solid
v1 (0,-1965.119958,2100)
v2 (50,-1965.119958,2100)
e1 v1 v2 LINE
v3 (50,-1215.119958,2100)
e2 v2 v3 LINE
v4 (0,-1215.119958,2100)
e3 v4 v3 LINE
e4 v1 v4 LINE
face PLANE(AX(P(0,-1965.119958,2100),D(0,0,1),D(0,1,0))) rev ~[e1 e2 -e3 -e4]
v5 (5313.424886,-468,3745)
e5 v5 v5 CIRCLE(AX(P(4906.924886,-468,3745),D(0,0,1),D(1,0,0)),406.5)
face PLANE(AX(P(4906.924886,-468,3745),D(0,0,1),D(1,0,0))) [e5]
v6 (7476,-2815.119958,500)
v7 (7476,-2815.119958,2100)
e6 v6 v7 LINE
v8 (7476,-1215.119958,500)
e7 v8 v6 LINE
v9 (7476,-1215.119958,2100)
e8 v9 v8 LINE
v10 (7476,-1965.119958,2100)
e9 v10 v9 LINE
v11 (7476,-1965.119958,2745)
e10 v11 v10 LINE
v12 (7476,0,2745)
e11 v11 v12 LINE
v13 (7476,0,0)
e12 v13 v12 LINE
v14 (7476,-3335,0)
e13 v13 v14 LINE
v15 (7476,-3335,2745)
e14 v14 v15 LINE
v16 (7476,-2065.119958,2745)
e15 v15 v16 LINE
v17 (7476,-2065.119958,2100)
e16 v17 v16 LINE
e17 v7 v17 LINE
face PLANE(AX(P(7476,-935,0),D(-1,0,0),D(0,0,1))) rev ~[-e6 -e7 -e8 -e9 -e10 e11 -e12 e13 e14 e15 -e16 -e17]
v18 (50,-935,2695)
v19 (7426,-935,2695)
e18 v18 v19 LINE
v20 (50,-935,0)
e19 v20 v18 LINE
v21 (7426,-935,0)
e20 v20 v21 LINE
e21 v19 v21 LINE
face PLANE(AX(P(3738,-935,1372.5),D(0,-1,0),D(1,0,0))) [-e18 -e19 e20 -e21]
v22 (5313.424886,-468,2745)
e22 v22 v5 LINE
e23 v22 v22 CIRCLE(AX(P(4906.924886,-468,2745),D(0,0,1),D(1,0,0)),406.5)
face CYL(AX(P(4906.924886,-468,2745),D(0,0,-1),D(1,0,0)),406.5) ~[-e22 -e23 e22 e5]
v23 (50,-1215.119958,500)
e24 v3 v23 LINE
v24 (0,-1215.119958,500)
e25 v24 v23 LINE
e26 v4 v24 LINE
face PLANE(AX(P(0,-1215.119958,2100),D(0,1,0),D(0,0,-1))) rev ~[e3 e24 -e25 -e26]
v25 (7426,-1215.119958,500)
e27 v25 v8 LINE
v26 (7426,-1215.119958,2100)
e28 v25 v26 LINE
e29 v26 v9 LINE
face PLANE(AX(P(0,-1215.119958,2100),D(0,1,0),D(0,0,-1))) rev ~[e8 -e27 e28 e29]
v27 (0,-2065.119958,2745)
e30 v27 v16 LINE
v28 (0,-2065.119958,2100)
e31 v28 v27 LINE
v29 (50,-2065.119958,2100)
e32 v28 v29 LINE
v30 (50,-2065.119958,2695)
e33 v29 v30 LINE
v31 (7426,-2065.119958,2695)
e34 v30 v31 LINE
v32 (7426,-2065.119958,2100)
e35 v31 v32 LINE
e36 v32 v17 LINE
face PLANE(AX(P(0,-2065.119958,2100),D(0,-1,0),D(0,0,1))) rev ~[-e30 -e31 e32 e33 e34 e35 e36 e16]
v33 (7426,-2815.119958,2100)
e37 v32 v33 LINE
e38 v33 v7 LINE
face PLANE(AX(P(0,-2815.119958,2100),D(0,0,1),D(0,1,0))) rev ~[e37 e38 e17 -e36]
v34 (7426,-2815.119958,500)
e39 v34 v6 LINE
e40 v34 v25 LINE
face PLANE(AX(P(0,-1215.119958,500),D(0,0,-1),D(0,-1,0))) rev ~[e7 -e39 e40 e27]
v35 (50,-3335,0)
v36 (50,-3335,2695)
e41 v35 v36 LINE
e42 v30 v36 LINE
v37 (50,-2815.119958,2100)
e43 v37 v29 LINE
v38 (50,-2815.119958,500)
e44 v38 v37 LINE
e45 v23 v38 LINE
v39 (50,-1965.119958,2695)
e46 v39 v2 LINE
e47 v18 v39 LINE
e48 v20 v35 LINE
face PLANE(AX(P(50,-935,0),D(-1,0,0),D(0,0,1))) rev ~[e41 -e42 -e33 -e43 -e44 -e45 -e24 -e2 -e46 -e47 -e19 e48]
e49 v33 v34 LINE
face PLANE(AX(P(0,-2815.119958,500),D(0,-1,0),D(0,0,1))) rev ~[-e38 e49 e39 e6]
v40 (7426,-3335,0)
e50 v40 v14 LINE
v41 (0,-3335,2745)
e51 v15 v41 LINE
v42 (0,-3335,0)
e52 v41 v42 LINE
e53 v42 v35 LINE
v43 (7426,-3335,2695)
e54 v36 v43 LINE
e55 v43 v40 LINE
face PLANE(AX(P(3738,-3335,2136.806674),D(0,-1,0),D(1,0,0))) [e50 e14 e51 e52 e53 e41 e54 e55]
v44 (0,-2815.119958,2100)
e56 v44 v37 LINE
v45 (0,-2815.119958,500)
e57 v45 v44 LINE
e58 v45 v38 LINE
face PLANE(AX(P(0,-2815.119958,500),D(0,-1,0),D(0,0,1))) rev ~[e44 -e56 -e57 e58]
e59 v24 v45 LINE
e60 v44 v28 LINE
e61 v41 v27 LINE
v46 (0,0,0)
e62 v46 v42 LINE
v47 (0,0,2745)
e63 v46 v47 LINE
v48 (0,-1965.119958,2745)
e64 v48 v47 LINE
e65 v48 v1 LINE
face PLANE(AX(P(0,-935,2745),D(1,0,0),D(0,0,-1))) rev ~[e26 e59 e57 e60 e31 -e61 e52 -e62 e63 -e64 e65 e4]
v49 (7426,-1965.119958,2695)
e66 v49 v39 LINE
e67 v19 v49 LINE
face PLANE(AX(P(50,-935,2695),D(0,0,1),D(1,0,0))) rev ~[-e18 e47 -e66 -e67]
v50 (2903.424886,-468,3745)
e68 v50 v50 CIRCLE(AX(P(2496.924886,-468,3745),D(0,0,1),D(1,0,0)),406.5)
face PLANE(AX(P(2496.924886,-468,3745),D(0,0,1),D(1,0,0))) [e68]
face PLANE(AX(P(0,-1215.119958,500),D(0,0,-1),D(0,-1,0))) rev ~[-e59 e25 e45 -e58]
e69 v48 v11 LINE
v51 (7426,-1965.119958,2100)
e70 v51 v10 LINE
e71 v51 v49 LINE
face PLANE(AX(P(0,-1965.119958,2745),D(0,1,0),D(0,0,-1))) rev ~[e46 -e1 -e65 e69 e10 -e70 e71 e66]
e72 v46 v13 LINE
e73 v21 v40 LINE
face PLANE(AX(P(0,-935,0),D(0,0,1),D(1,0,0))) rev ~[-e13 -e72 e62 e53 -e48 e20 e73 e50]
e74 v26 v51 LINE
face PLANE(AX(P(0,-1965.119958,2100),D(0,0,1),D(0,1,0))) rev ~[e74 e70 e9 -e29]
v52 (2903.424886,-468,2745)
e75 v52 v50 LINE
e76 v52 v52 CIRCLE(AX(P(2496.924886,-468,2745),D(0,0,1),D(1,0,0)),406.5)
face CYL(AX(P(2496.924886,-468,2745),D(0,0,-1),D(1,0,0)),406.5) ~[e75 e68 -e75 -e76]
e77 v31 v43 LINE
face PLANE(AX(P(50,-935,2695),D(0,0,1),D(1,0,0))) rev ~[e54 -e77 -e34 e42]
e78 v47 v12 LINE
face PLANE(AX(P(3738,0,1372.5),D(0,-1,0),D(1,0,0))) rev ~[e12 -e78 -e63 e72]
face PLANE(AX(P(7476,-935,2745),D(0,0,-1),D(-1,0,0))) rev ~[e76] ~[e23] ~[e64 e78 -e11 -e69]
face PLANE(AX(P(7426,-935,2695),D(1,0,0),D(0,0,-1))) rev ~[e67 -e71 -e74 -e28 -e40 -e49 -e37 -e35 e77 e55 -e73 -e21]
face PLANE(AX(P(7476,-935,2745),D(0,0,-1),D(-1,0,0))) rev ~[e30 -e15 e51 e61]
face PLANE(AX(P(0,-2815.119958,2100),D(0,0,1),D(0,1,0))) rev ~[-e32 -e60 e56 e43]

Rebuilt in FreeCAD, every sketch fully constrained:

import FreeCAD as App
import Part
import Sketcher
Q = App.Units.Quantity


def add_polygon(sketch, points):
    """Adds a closed chain of lines whose ends are joined by coincident constraints."""
    first, n = sketch.GeometryCount, len(points)
    for a, b in zip(points, points[1:] + points[:1]):
        sketch.addGeometry(Part.LineSegment(App.Vector(*a, 0), App.Vector(*b, 0)), False)
    for i in range(n):
        sketch.addConstraint(Sketcher.Constraint("Coincident", first + i, 2, first + (i + 1) % n, 1))

doc = App.newDocument("Part")
params = doc.addObject("Spreadsheet::Sheet", "Params")
for row, (alias, value) in enumerate([
    ("sketch1_width", "7476 mm"),
    ("sketch1_height", "2745 mm"),
    ("pad1_length", "935 mm"),
    ("sketch2_diameter", "813 mm"),
    ("pad2_length", "1000 mm"),
    ("sketch3_width", "50 mm"),
    ("sketch3_width2", "7376 mm"),
    ("sketch3_height", "2745 mm"),
    ("sketch3_height2", "2695 mm"),
    ("pad3_length", "2400 mm"),
    ("sketch4_width", "100 mm"),
    ("sketch4_width2", "750 mm"),
    ("sketch4_height", "645 mm"),
], start=1):
    params.set(f"A{row}", alias)
    params.set(f"B{row}", "=" + value)
    params.setAlias(f"B{row}", alias)

body = doc.addObject("PartDesign::Body", "Body")

# Sketch on XZ plane
sketch1 = doc.addObject("Sketcher::SketchObject", "Sketch")
body.addObject(sketch1)
sketch1.AttachmentSupport = (doc.XZ_Plane, [""])
sketch1.MapMode = "FlatFace"
add_polygon(sketch1, [(0, 2745), (0, 0), (7476, 0), (7476, 2745)])  # lines 0-3
sketch1.addConstraint(Sketcher.Constraint("Vertical", 0))
sketch1.addConstraint(Sketcher.Constraint("Horizontal", 1))
sketch1.addConstraint(Sketcher.Constraint("Vertical", 2))
sketch1.addConstraint(Sketcher.Constraint("Horizontal", 3))
sketch1.addConstraint(Sketcher.Constraint("Coincident", 0, 2, -1, 1))
sketch1.addConstraint(Sketcher.Constraint("DistanceX", 1, 1, 1, 2, Q("7476 mm")))
sketch1.addConstraint(Sketcher.Constraint("DistanceY", 0, 2, 0, 1, Q("2745 mm")))
sketch1.setExpression("Constraints[9]", "Params.sketch1_width")
sketch1.setExpression("Constraints[10]", "Params.sketch1_height")
pad1 = doc.addObject("PartDesign::Pad", "Pad")
body.addObject(pad1)
pad1.Profile = sketch1
pad1.setExpression("Length", "Params.pad1_length")

# Sketch on XY plane
sketch2 = doc.addObject("Sketcher::SketchObject", "Sketch001")
body.addObject(sketch2)
sketch2.AttachmentSupport = (doc.XY_Plane, [""])
sketch2.MapMode = "FlatFace"
sketch2.AttachmentOffset = App.Placement(App.Vector(0, 0, 2745), App.Rotation())
sketch2.addGeometry(Part.Circle(App.Vector(2497, -468, 0), App.Vector(0, 0, 1), 406), False)
sketch2.addGeometry(Part.Circle(App.Vector(4907, -468, 0), App.Vector(0, 0, 1), 406), False)
sketch2.addConstraint(Sketcher.Constraint("Equal", 0, 1))
sketch2.addConstraint(Sketcher.Constraint("Horizontal", 0, 3, 1, 3))
sketch2.addConstraint(Sketcher.Constraint("Diameter", 0, Q("813 mm")))
sketch2.addConstraint(Sketcher.Constraint("DistanceY", 0, 3, -1, 1, Q("468 mm")))
sketch2.addConstraint(Sketcher.Constraint("DistanceX", 0, 3, 1, 3, Q("2410 mm")))
sketch2.addConstraint(Sketcher.Constraint("DistanceX", -1, 1, 0, 3, Q("2496.924886 mm")))
sketch2.setExpression("Constraints[2]", "Params.sketch2_diameter")
pad2 = doc.addObject("PartDesign::Pad", "Pad001")
body.addObject(pad2)
pad2.Profile = sketch2
pad2.setExpression("Length", "Params.pad2_length")

# Sketch on XZ plane
sketch3 = doc.addObject("Sketcher::SketchObject", "Sketch002")
body.addObject(sketch3)
sketch3.AttachmentSupport = (doc.XZ_Plane, [""])
sketch3.MapMode = "FlatFace"
sketch3.AttachmentOffset = App.Placement(App.Vector(0, 0, 935), App.Rotation())
add_polygon(sketch3, [(0, 2745), (0, 0), (50, 0), (50, 2695), (7426, 2695), (7426, 0), (7476, 0), (7476, 2745)])  # lines 0-7
sketch3.addConstraint(Sketcher.Constraint("Vertical", 0))
sketch3.addConstraint(Sketcher.Constraint("Horizontal", 1))
sketch3.addConstraint(Sketcher.Constraint("Vertical", 2))
sketch3.addConstraint(Sketcher.Constraint("Horizontal", 3))
sketch3.addConstraint(Sketcher.Constraint("Vertical", 4))
sketch3.addConstraint(Sketcher.Constraint("Horizontal", 5))
sketch3.addConstraint(Sketcher.Constraint("Vertical", 6))
sketch3.addConstraint(Sketcher.Constraint("Horizontal", 7))
sketch3.addConstraint(Sketcher.Constraint("Coincident", 0, 2, -1, 1))
sketch3.addConstraint(Sketcher.Constraint("PointOnObject", 4, 2, -1))
sketch3.addConstraint(Sketcher.Constraint("Equal", 1, 5))
sketch3.addConstraint(Sketcher.Constraint("DistanceX", 1, 1, 1, 2, Q("50 mm")))
sketch3.addConstraint(Sketcher.Constraint("DistanceX", 3, 1, 3, 2, Q("7376 mm")))
sketch3.addConstraint(Sketcher.Constraint("DistanceY", 0, 2, 0, 1, Q("2745 mm")))
sketch3.addConstraint(Sketcher.Constraint("DistanceY", 2, 1, 2, 2, Q("2695 mm")))
sketch3.setExpression("Constraints[19]", "Params.sketch3_width")
sketch3.setExpression("Constraints[20]", "Params.sketch3_width2")
sketch3.setExpression("Constraints[21]", "Params.sketch3_height")
sketch3.setExpression("Constraints[22]", "Params.sketch3_height2")
pad3 = doc.addObject("PartDesign::Pad", "Pad002")
body.addObject(pad3)
pad3.Profile = sketch3
pad3.setExpression("Length", "Params.pad3_length")

# Sketch on YZ plane
sketch4 = doc.addObject("Sketcher::SketchObject", "Sketch003")
body.addObject(sketch4)
sketch4.AttachmentSupport = (doc.YZ_Plane, [""])
sketch4.MapMode = "FlatFace"
add_polygon(sketch4, [(-2065, 2745), (-1965, 2745), (-1965, 2100), (-1215, 2100), (-1215, 500), (-2815, 500), (-2815, 2100), (-2065, 2100)])  # lines 0-7
sketch4.addConstraint(Sketcher.Constraint("Horizontal", 0))
sketch4.addConstraint(Sketcher.Constraint("Vertical", 1))
sketch4.addConstraint(Sketcher.Constraint("Horizontal", 2))
sketch4.addConstraint(Sketcher.Constraint("Vertical", 3))
sketch4.addConstraint(Sketcher.Constraint("Horizontal", 4))
sketch4.addConstraint(Sketcher.Constraint("Vertical", 5))
sketch4.addConstraint(Sketcher.Constraint("Horizontal", 6))
sketch4.addConstraint(Sketcher.Constraint("Vertical", 7))
sketch4.addConstraint(Sketcher.Constraint("Horizontal", 2, 2, 5, 2))
sketch4.addConstraint(Sketcher.Constraint("Equal", 2, 6))
sketch4.addConstraint(Sketcher.Constraint("Equal", 4, 3))
sketch4.addConstraint(Sketcher.Constraint("DistanceX", 0, 1, 0, 2, Q("100 mm")))
sketch4.addConstraint(Sketcher.Constraint("DistanceX", 2, 1, 2, 2, Q("750 mm")))
sketch4.addConstraint(Sketcher.Constraint("DistanceY", 1, 2, 1, 1, Q("645 mm")))
sketch4.addConstraint(Sketcher.Constraint("DistanceY", -1, 1, 0, 2, Q("2745 mm")))
sketch4.addConstraint(Sketcher.Constraint("DistanceX", 0, 2, -1, 1, Q("1965.119958 mm")))
sketch4.setExpression("Constraints[19]", "Params.sketch4_width")
sketch4.setExpression("Constraints[20]", "Params.sketch4_width2")
sketch4.setExpression("Constraints[21]", "Params.sketch4_height")
pocket1 = doc.addObject("PartDesign::Pocket", "Pocket")
body.addObject(pocket1)
pocket1.Profile = sketch4
pocket1.Type = "ThroughAll"
pocket1.Reversed = True

doc.recompute()
